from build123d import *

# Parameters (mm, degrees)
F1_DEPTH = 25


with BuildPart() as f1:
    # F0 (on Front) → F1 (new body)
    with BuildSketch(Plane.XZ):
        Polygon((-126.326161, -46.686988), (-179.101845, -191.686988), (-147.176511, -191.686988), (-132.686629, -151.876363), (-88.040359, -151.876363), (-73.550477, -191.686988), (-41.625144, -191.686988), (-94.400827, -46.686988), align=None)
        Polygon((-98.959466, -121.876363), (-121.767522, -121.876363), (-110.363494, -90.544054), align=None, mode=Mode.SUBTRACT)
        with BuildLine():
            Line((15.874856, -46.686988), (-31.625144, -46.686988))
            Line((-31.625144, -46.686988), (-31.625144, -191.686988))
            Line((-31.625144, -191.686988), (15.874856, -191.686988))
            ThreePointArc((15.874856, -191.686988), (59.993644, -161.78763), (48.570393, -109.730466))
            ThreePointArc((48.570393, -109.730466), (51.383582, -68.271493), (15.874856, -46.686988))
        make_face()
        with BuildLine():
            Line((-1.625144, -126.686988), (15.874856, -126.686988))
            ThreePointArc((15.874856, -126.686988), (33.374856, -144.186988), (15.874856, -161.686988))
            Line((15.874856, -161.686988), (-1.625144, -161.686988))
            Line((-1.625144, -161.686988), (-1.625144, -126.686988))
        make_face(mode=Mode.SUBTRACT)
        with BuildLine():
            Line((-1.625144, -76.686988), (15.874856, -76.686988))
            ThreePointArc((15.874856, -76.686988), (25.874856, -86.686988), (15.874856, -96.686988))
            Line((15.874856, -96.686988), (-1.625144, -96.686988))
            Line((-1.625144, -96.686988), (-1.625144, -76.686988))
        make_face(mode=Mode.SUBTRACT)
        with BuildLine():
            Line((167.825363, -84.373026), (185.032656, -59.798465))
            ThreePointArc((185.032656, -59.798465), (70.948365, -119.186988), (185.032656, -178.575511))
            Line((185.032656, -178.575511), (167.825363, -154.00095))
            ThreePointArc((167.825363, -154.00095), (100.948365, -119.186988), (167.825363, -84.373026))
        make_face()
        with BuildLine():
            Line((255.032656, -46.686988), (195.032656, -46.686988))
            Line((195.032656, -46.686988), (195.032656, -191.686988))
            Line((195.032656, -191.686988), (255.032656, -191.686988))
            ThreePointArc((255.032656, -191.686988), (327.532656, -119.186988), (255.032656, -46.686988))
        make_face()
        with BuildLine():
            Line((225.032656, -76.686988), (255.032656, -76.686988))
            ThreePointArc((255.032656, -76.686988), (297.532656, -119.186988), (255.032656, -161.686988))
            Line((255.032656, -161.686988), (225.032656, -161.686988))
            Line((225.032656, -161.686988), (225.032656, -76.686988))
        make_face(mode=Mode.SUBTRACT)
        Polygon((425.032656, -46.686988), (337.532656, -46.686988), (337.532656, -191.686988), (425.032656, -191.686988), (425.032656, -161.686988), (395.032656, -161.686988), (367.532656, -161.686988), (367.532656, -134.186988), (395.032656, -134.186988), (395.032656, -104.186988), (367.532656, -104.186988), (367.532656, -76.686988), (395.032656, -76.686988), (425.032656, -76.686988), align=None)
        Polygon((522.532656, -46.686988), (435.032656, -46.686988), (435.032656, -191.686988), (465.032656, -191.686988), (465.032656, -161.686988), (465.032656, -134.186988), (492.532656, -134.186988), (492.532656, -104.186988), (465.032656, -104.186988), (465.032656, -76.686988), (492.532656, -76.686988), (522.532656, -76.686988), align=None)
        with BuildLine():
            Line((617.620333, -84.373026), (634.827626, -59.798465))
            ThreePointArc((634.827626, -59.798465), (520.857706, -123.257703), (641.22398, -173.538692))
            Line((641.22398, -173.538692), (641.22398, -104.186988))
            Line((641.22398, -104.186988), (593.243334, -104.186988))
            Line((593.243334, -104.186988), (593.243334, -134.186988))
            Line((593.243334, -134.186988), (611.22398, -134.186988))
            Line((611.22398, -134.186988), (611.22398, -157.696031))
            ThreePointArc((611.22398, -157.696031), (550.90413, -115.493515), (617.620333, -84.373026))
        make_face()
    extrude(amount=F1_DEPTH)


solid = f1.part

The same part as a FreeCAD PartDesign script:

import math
import FreeCAD as App
import Part
import Sketcher
from FreeCAD import Vector
Q = App.Units.Quantity


def add_polygon(sketch, points):
    """Adds a closed chain of lines whose ends are joined by coincident constraints."""
    first, n = sketch.GeometryCount, len(points)
    for a, b in zip(points, points[1:] + points[:1]):
        sketch.addGeometry(Part.LineSegment(App.Vector(*a, 0), App.Vector(*b, 0)), False)
    for i in range(n):
        sketch.addConstraint(Sketcher.Constraint("Coincident", first + i, 2, first + (i + 1) % n, 1))

doc = App.newDocument("Part")
body = doc.addObject("PartDesign::Body", "Body")
body.AllowCompound = True

# Sketch on XZ plane
sketch1 = body.newObject("Sketcher::SketchObject", "Sketch")
sketch1.AttachmentSupport = (doc.getObject("XZ_Plane"), [""])
sketch1.MapMode = "FlatFace"
add_polygon(sketch1, [(-126, -47), (-179, -192), (-147, -192), (-133, -152), (-88, -152), (-74, -192), (-42, -192), (-94, -47)])  # lines 0-7
add_polygon(sketch1, [(-110, -91), (-99, -122), (-122, -122)])  # lines 8-10
sketch1.addGeometry(Part.LineSegment(Vector(16, -47, 0), Vector(-32, -47, 0)), False)  # 11
sketch1.addGeometry(Part.LineSegment(Vector(-32, -47, 0), Vector(-32, -192, 0)), False)  # 12
sketch1.addGeometry(Part.LineSegment(Vector(-32, -192, 0), Vector(16, -192, 0)), False)  # 13
sketch1.addGeometry(Part.ArcOfCircle(Part.Circle(Vector(16, -144, 0), Vector(0, 0, 1), 48), math.radians(-90), math.radians(47)), False)  # 14
sketch1.addGeometry(Part.ArcOfCircle(Part.Circle(Vector(16, -87, 0), Vector(0, 0, 1), 40), math.radians(-35), math.radians(90)), False)  # 15
sketch1.addGeometry(Part.LineSegment(Vector(-2, -162, 0), Vector(-2, -127, 0)), False)  # 16
sketch1.addGeometry(Part.LineSegment(Vector(-2, -127, 0), Vector(16, -127, 0)), False)  # 17
sketch1.addGeometry(Part.ArcOfCircle(Part.Circle(Vector(16, -144, 0), Vector(0, 0, 1), 18), math.radians(-90), math.radians(90)), False)  # 18
sketch1.addGeometry(Part.LineSegment(Vector(16, -162, 0), Vector(-2, -162, 0)), False)  # 19
sketch1.addGeometry(Part.LineSegment(Vector(-2, -97, 0), Vector(-2, -77, 0)), False)  # 20
sketch1.addGeometry(Part.LineSegment(Vector(-2, -77, 0), Vector(16, -77, 0)), False)  # 21
sketch1.addGeometry(Part.ArcOfCircle(Part.Circle(Vector(16, -87, 0), Vector(0, 0, 1), 10), math.radians(-90), math.radians(90)), False)  # 22
sketch1.addGeometry(Part.LineSegment(Vector(16, -97, 0), Vector(-2, -97, 0)), False)  # 23
sketch1.addGeometry(Part.LineSegment(Vector(168, -84, 0), Vector(185, -60, 0)), False)  # 24
sketch1.addGeometry(Part.ArcOfCircle(Part.Circle(Vector(143, -119, 0), Vector(0, 0, 1), 72), math.radians(55), math.radians(305)), False)  # 25
sketch1.addGeometry(Part.LineSegment(Vector(185, -179, 0), Vector(168, -154, 0)), False)  # 26
sketch1.addGeometry(Part.ArcOfCircle(Part.Circle(Vector(143, -119, 0), Vector(0, 0, 1), 42), math.radians(55), math.radians(305)), False)  # 27
sketch1.addGeometry(Part.LineSegment(Vector(255, -47, 0), Vector(195, -47, 0)), False)  # 28
sketch1.addGeometry(Part.LineSegment(Vector(195, -47, 0), Vector(195, -192, 0)), False)  # 29
sketch1.addGeometry(Part.LineSegment(Vector(195, -192, 0), Vector(255, -192, 0)), False)  # 30
sketch1.addGeometry(Part.ArcOfCircle(Part.Circle(Vector(255, -119, 0), Vector(0, 0, 1), 72), math.radians(-90), math.radians(90)), False)  # 31
sketch1.addGeometry(Part.LineSegment(Vector(225, -162, 0), Vector(225, -77, 0)), False)  # 32
sketch1.addGeometry(Part.LineSegment(Vector(225, -77, 0), Vector(255, -77, 0)), False)  # 33
sketch1.addGeometry(Part.ArcOfCircle(Part.Circle(Vector(255, -119, 0), Vector(0, 0, 1), 42), math.radians(-90), math.radians(90)), False)  # 34
sketch1.addGeometry(Part.LineSegment(Vector(255, -162, 0), Vector(225, -162, 0)), False)  # 35
add_polygon(sketch1, [(425, -47), (338, -47), (338, -192), (425, -192), (425, -162), (368, -162), (368, -134), (395, -134), (395, -104), (368, -104), (368, -77), (425, -77)])  # lines 36-47
add_polygon(sketch1, [(523, -47), (435, -47), (435, -192), (465, -192), (465, -134), (493, -134), (493, -104), (465, -104), (465, -77), (523, -77)])  # lines 48-57
sketch1.addGeometry(Part.LineSegment(Vector(618, -84, 0), Vector(635, -60, 0)), False)  # 58
sketch1.addGeometry(Part.ArcOfCircle(Part.Circle(Vector(593, -119, 0), Vector(0, 0, 1), 72), math.radians(55), math.radians(311)), False)  # 59
sketch1.addGeometry(Part.LineSegment(Vector(641, -174, 0), Vector(641, -104, 0)), False)  # 60
sketch1.addGeometry(Part.LineSegment(Vector(641, -104, 0), Vector(593, -104, 0)), False)  # 61
sketch1.addGeometry(Part.LineSegment(Vector(593, -104, 0), Vector(593, -134, 0)), False)  # 62
sketch1.addGeometry(Part.LineSegment(Vector(593, -134, 0), Vector(611, -134, 0)), False)  # 63
sketch1.addGeometry(Part.LineSegment(Vector(611, -134, 0), Vector(611, -158, 0)), False)  # 64
sketch1.addGeometry(Part.ArcOfCircle(Part.Circle(Vector(593, -119, 0), Vector(0, 0, 1), 42), math.radians(55), math.radians(295)), False)  # 65
sketch1.addConstraint([
    Sketcher.Constraint("Coincident", 11, 2, 12, 1),
    Sketcher.Constraint("Coincident", 12, 2, 13, 1),
    Sketcher.Constraint("Tangent", 13, 2, 14, 1),
    Sketcher.Constraint("Coincident", 14, 2, 15, 1),
    Sketcher.Constraint("Tangent", 15, 2, 11, 1),
    Sketcher.Constraint("Coincident", 16, 2, 17, 1),
    Sketcher.Constraint("Tangent", 17, 2, 18, 2),
    Sketcher.Constraint("Tangent", 18, 1, 19, 1),
    Sketcher.Constraint("Coincident", 19, 2, 16, 1),
    Sketcher.Constraint("Coincident", 20, 2, 21, 1),
    Sketcher.Constraint("Tangent", 21, 2, 22, 2),
    Sketcher.Constraint("Tangent", 22, 1, 23, 1),
    Sketcher.Constraint("Coincident", 23, 2, 20, 1),
    Sketcher.Constraint("Coincident", 24, 2, 25, 1),
    Sketcher.Constraint("Coincident", 25, 2, 26, 1),
    Sketcher.Constraint("Coincident", 26, 2, 27, 2),
    Sketcher.Constraint("Coincident", 27, 1, 24, 1),
    Sketcher.Constraint("Coincident", 28, 2, 29, 1),
    Sketcher.Constraint("Coincident", 29, 2, 30, 1),
    Sketcher.Constraint("Tangent", 30, 2, 31, 1),
    Sketcher.Constraint("Tangent", 31, 2, 28, 1),
    Sketcher.Constraint("Coincident", 32, 2, 33, 1),
    Sketcher.Constraint("Tangent", 33, 2, 34, 2),
    Sketcher.Constraint("Tangent", 34, 1, 35, 1),
    Sketcher.Constraint("Coincident", 35, 2, 32, 1),
    Sketcher.Constraint("Coincident", 58, 2, 59, 1),
    Sketcher.Constraint("Coincident", 59, 2, 60, 1),
    Sketcher.Constraint("Coincident", 60, 2, 61, 1),
    Sketcher.Constraint("Coincident", 61, 2, 62, 1),
    Sketcher.Constraint("Coincident", 62, 2, 63, 1),
    Sketcher.Constraint("Coincident", 63, 2, 64, 1),
    Sketcher.Constraint("Coincident", 64, 2, 65, 2),
    Sketcher.Constraint("Coincident", 65, 1, 58, 1),
    Sketcher.Constraint("Horizontal", 1),
    Sketcher.Constraint("Horizontal", 3),
    Sketcher.Constraint("Horizontal", 5),
    Sketcher.Constraint("Horizontal", 7),
    Sketcher.Constraint("Horizontal", 9),
    Sketcher.Constraint("Horizontal", 11),
    Sketcher.Constraint("Vertical", 12),
    Sketcher.Constraint("Horizontal", 13),
    Sketcher.Constraint("Vertical", 16),
    Sketcher.Constraint("Horizontal", 17),
    Sketcher.Constraint("Horizontal", 19),
    Sketcher.Constraint("Vertical", 20),
    Sketcher.Constraint("Horizontal", 21),
    Sketcher.Constraint("Horizontal", 23),
    Sketcher.Constraint("Horizontal", 28),
    Sketcher.Constraint("Vertical", 29),
    Sketcher.Constraint("Horizontal", 30),
    Sketcher.Constraint("Vertical", 32),
    Sketcher.Constraint("Horizontal", 33),
    Sketcher.Constraint("Horizontal", 35),
    Sketcher.Constraint("Horizontal", 36),
    Sketcher.Constraint("Vertical", 37),
    Sketcher.Constraint("Horizontal", 38),
    Sketcher.Constraint("Vertical", 39),
    Sketcher.Constraint("Horizontal", 40),
    Sketcher.Constraint("Vertical", 41),
    Sketcher.Constraint("Horizontal", 42),
    Sketcher.Constraint("Vertical", 43),
    Sketcher.Constraint("Horizontal", 44),
    Sketcher.Constraint("Vertical", 45),
    Sketcher.Constraint("Horizontal", 46),
    Sketcher.Constraint("Vertical", 47),
    Sketcher.Constraint("Horizontal", 48),
    Sketcher.Constraint("Vertical", 49),
    Sketcher.Constraint("Horizontal", 50),
    Sketcher.Constraint("Vertical", 51),
    Sketcher.Constraint("Horizontal", 52),
    Sketcher.Constraint("Vertical", 53),
    Sketcher.Constraint("Horizontal", 54),
    Sketcher.Constraint("Vertical", 55),
    Sketcher.Constraint("Horizontal", 56),
    Sketcher.Constraint("Vertical", 57),
    Sketcher.Constraint("Vertical", 60),
    Sketcher.Constraint("Horizontal", 61),
    Sketcher.Constraint("Vertical", 62),
    Sketcher.Constraint("Horizontal", 63),
    Sketcher.Constraint("Vertical", 64),
    Sketcher.Constraint("Coincident", 18, 3, 14, 3),
    Sketcher.Constraint("Coincident", 22, 3, 15, 3),
    Sketcher.Constraint("Coincident", 27, 3, 25, 3),
    Sketcher.Constraint("Coincident", 34, 3, 31, 3),
    Sketcher.Constraint("Coincident", 65, 3, 59, 3),
    Sketcher.Constraint("Equal", 25, 31),
    Sketcher.Constraint("Equal", 27, 34),
    Sketcher.Constraint("Equal", 31, 59),
    Sketcher.Constraint("Equal", 34, 65),
    Sketcher.Constraint("Parallel", 0, 2),
    Sketcher.Constraint("Parallel", 4, 6),
    Sketcher.Constraint("Parallel", 6, 8),
    Sketcher.Constraint("Parallel", 2, 10),
    Sketcher.Constraint("Parallel", 24, 58),
    Sketcher.Constraint("Horizontal", 27, 3, 31, 3),
    Sketcher.Constraint("Horizontal", 34, 3, 59, 3),
    Sketcher.Constraint("Horizontal", 1, 2, 4, 2),
    Sketcher.Constraint("Horizontal", 7, 2, 11, 2),
    Sketcher.Constraint("Horizontal", 5, 2, 12, 2),
    Sketcher.Constraint("Horizontal", 15, 2, 28, 2),
    Sketcher.Constraint("Horizontal", 13, 2, 29, 2),
    Sketcher.Constraint("Horizontal", 21, 2, 32, 2),
    Sketcher.Constraint("Horizontal", 19, 2, 34, 1),
    Sketcher.Constraint("Horizontal", 31, 2, 36, 2),
    Sketcher.Constraint("Horizontal", 30, 2, 37, 2),
    Sketcher.Constraint("Horizontal", 35, 2, 39, 2),
    Sketcher.Constraint("Horizontal", 33, 2, 45, 2),
    Sketcher.Constraint("Horizontal", 47, 2, 48, 2),
    Sketcher.Constraint("Horizontal", 38, 2, 49, 2),
    Sketcher.Constraint("Horizontal", 42, 2, 51, 2),
    Sketcher.Constraint("Horizontal", 44, 2, 53, 2),
    Sketcher.Constraint("Horizontal", 46, 2, 55, 2),
    Sketcher.Constraint("Horizontal", 24, 2, 58, 2),
    Sketcher.Constraint("Horizontal", 54, 2, 60, 2),
    Sketcher.Constraint("Horizontal", 52, 2, 62, 2),
    Sketcher.Constraint("Vertical", 14, 3, 15, 3),
    Sketcher.Constraint("Vertical", 19, 2, 20, 2),
    Sketcher.Constraint("Vertical", 24, 2, 25, 2),
    Sketcher.Constraint("Vertical", 26, 2, 27, 1),
    Sketcher.Constraint("Vertical", 41, 2, 44, 2),
    Sketcher.Constraint("Vertical", 39, 2, 46, 2),
    Sketcher.Constraint("Vertical", 51, 2, 54, 2),
    Sketcher.Constraint("Vertical", 65, 3, 61, 2),
    Sketcher.Constraint("Equal", 1, 5),
    Sketcher.Constraint("Equal", 5, 7),
    Sketcher.Constraint("Equal", 38, 48),
    Sketcher.Constraint("Equal", 35, 50),
    Sketcher.Constraint("Equal", 44, 52),
    Sketcher.Constraint("Equal", 46, 56),
    Sketcher.Constraint("Equal", 50, 39),
    Sketcher.Constraint("Equal", 54, 41),
    Sketcher.Constraint("Equal", 39, 43),
    Sketcher.Constraint("Equal", 41, 45),
    Sketcher.Constraint("Equal", 56, 51),
    Sketcher.Constraint("Equal", 2, 4),
    Sketcher.Constraint("Radius", 15, 39.999999),
    Sketcher.Constraint("Radius", 22, 10.0),
    Sketcher.Constraint("Radius", 14, 47.5),
    Sketcher.Constraint("Radius", 25, 72.5),
    Sketcher.Constraint("DistanceX", 28, 2, 28, 1, 60.0),
    Sketcher.Constraint("Angle", 0, Q("-110 deg")),
    Sketcher.Constraint("Angle", 24, Q("55 deg")),
    Sketcher.Constraint("DistanceX", 11, 2, 11, 1, 47.5),
    Sketcher.Constraint("DistanceX", 17, 1, 17, 2, 17.5),
    Sketcher.Constraint("DistanceX", 3, 1, 3, 2, 44.64627),
    Sketcher.Constraint("DistanceX", 1, 1, 1, 2, 31.925334),
    Sketcher.Constraint("DistanceX", 9, 2, 9, 1, 22.808056),
    Sketcher.Constraint("DistanceX", 61, 2, 61, 1, 47.980646),
    Sketcher.Constraint("DistanceX", 63, 1, 63, 2, 17.980646),
    Sketcher.Constraint("DistanceY", 18, 3, -1, 1, 144.186988),
    Sketcher.Constraint("DistanceX", 1, 2, -1, 1, 147.176511),
    Sketcher.Constraint("DistanceX", 9, 2, -1, 1, 121.767522),
    Sketcher.Constraint("DistanceY", 25, 2, -1, 1, 178.575511),
    Sketcher.Constraint("DistanceX", -1, 1, 59, 2, 641.22398),
    Sketcher.Constraint("DistanceX", -1, 1, 14, 3, 15.874857),
    Sketcher.Constraint("DistanceX", -1, 1, 25, 3, 143.448365),
    Sketcher.Constraint("DistanceX", -1, 1, 31, 3, 255.032656),
    Sketcher.Constraint("DistanceY", 8, 2, -1, 1, 121.876363),
    Sketcher.Constraint("DistanceX", -1, 1, 36, 2, 337.532656),
    Sketcher.Constraint("DistanceX", -1, 1, 48, 2, 435.032656),
])
pad1 = body.newObject("PartDesign::Pad", "Pad")
pad1.Profile = sketch1
pad1.Length = 25

doc.recompute()
